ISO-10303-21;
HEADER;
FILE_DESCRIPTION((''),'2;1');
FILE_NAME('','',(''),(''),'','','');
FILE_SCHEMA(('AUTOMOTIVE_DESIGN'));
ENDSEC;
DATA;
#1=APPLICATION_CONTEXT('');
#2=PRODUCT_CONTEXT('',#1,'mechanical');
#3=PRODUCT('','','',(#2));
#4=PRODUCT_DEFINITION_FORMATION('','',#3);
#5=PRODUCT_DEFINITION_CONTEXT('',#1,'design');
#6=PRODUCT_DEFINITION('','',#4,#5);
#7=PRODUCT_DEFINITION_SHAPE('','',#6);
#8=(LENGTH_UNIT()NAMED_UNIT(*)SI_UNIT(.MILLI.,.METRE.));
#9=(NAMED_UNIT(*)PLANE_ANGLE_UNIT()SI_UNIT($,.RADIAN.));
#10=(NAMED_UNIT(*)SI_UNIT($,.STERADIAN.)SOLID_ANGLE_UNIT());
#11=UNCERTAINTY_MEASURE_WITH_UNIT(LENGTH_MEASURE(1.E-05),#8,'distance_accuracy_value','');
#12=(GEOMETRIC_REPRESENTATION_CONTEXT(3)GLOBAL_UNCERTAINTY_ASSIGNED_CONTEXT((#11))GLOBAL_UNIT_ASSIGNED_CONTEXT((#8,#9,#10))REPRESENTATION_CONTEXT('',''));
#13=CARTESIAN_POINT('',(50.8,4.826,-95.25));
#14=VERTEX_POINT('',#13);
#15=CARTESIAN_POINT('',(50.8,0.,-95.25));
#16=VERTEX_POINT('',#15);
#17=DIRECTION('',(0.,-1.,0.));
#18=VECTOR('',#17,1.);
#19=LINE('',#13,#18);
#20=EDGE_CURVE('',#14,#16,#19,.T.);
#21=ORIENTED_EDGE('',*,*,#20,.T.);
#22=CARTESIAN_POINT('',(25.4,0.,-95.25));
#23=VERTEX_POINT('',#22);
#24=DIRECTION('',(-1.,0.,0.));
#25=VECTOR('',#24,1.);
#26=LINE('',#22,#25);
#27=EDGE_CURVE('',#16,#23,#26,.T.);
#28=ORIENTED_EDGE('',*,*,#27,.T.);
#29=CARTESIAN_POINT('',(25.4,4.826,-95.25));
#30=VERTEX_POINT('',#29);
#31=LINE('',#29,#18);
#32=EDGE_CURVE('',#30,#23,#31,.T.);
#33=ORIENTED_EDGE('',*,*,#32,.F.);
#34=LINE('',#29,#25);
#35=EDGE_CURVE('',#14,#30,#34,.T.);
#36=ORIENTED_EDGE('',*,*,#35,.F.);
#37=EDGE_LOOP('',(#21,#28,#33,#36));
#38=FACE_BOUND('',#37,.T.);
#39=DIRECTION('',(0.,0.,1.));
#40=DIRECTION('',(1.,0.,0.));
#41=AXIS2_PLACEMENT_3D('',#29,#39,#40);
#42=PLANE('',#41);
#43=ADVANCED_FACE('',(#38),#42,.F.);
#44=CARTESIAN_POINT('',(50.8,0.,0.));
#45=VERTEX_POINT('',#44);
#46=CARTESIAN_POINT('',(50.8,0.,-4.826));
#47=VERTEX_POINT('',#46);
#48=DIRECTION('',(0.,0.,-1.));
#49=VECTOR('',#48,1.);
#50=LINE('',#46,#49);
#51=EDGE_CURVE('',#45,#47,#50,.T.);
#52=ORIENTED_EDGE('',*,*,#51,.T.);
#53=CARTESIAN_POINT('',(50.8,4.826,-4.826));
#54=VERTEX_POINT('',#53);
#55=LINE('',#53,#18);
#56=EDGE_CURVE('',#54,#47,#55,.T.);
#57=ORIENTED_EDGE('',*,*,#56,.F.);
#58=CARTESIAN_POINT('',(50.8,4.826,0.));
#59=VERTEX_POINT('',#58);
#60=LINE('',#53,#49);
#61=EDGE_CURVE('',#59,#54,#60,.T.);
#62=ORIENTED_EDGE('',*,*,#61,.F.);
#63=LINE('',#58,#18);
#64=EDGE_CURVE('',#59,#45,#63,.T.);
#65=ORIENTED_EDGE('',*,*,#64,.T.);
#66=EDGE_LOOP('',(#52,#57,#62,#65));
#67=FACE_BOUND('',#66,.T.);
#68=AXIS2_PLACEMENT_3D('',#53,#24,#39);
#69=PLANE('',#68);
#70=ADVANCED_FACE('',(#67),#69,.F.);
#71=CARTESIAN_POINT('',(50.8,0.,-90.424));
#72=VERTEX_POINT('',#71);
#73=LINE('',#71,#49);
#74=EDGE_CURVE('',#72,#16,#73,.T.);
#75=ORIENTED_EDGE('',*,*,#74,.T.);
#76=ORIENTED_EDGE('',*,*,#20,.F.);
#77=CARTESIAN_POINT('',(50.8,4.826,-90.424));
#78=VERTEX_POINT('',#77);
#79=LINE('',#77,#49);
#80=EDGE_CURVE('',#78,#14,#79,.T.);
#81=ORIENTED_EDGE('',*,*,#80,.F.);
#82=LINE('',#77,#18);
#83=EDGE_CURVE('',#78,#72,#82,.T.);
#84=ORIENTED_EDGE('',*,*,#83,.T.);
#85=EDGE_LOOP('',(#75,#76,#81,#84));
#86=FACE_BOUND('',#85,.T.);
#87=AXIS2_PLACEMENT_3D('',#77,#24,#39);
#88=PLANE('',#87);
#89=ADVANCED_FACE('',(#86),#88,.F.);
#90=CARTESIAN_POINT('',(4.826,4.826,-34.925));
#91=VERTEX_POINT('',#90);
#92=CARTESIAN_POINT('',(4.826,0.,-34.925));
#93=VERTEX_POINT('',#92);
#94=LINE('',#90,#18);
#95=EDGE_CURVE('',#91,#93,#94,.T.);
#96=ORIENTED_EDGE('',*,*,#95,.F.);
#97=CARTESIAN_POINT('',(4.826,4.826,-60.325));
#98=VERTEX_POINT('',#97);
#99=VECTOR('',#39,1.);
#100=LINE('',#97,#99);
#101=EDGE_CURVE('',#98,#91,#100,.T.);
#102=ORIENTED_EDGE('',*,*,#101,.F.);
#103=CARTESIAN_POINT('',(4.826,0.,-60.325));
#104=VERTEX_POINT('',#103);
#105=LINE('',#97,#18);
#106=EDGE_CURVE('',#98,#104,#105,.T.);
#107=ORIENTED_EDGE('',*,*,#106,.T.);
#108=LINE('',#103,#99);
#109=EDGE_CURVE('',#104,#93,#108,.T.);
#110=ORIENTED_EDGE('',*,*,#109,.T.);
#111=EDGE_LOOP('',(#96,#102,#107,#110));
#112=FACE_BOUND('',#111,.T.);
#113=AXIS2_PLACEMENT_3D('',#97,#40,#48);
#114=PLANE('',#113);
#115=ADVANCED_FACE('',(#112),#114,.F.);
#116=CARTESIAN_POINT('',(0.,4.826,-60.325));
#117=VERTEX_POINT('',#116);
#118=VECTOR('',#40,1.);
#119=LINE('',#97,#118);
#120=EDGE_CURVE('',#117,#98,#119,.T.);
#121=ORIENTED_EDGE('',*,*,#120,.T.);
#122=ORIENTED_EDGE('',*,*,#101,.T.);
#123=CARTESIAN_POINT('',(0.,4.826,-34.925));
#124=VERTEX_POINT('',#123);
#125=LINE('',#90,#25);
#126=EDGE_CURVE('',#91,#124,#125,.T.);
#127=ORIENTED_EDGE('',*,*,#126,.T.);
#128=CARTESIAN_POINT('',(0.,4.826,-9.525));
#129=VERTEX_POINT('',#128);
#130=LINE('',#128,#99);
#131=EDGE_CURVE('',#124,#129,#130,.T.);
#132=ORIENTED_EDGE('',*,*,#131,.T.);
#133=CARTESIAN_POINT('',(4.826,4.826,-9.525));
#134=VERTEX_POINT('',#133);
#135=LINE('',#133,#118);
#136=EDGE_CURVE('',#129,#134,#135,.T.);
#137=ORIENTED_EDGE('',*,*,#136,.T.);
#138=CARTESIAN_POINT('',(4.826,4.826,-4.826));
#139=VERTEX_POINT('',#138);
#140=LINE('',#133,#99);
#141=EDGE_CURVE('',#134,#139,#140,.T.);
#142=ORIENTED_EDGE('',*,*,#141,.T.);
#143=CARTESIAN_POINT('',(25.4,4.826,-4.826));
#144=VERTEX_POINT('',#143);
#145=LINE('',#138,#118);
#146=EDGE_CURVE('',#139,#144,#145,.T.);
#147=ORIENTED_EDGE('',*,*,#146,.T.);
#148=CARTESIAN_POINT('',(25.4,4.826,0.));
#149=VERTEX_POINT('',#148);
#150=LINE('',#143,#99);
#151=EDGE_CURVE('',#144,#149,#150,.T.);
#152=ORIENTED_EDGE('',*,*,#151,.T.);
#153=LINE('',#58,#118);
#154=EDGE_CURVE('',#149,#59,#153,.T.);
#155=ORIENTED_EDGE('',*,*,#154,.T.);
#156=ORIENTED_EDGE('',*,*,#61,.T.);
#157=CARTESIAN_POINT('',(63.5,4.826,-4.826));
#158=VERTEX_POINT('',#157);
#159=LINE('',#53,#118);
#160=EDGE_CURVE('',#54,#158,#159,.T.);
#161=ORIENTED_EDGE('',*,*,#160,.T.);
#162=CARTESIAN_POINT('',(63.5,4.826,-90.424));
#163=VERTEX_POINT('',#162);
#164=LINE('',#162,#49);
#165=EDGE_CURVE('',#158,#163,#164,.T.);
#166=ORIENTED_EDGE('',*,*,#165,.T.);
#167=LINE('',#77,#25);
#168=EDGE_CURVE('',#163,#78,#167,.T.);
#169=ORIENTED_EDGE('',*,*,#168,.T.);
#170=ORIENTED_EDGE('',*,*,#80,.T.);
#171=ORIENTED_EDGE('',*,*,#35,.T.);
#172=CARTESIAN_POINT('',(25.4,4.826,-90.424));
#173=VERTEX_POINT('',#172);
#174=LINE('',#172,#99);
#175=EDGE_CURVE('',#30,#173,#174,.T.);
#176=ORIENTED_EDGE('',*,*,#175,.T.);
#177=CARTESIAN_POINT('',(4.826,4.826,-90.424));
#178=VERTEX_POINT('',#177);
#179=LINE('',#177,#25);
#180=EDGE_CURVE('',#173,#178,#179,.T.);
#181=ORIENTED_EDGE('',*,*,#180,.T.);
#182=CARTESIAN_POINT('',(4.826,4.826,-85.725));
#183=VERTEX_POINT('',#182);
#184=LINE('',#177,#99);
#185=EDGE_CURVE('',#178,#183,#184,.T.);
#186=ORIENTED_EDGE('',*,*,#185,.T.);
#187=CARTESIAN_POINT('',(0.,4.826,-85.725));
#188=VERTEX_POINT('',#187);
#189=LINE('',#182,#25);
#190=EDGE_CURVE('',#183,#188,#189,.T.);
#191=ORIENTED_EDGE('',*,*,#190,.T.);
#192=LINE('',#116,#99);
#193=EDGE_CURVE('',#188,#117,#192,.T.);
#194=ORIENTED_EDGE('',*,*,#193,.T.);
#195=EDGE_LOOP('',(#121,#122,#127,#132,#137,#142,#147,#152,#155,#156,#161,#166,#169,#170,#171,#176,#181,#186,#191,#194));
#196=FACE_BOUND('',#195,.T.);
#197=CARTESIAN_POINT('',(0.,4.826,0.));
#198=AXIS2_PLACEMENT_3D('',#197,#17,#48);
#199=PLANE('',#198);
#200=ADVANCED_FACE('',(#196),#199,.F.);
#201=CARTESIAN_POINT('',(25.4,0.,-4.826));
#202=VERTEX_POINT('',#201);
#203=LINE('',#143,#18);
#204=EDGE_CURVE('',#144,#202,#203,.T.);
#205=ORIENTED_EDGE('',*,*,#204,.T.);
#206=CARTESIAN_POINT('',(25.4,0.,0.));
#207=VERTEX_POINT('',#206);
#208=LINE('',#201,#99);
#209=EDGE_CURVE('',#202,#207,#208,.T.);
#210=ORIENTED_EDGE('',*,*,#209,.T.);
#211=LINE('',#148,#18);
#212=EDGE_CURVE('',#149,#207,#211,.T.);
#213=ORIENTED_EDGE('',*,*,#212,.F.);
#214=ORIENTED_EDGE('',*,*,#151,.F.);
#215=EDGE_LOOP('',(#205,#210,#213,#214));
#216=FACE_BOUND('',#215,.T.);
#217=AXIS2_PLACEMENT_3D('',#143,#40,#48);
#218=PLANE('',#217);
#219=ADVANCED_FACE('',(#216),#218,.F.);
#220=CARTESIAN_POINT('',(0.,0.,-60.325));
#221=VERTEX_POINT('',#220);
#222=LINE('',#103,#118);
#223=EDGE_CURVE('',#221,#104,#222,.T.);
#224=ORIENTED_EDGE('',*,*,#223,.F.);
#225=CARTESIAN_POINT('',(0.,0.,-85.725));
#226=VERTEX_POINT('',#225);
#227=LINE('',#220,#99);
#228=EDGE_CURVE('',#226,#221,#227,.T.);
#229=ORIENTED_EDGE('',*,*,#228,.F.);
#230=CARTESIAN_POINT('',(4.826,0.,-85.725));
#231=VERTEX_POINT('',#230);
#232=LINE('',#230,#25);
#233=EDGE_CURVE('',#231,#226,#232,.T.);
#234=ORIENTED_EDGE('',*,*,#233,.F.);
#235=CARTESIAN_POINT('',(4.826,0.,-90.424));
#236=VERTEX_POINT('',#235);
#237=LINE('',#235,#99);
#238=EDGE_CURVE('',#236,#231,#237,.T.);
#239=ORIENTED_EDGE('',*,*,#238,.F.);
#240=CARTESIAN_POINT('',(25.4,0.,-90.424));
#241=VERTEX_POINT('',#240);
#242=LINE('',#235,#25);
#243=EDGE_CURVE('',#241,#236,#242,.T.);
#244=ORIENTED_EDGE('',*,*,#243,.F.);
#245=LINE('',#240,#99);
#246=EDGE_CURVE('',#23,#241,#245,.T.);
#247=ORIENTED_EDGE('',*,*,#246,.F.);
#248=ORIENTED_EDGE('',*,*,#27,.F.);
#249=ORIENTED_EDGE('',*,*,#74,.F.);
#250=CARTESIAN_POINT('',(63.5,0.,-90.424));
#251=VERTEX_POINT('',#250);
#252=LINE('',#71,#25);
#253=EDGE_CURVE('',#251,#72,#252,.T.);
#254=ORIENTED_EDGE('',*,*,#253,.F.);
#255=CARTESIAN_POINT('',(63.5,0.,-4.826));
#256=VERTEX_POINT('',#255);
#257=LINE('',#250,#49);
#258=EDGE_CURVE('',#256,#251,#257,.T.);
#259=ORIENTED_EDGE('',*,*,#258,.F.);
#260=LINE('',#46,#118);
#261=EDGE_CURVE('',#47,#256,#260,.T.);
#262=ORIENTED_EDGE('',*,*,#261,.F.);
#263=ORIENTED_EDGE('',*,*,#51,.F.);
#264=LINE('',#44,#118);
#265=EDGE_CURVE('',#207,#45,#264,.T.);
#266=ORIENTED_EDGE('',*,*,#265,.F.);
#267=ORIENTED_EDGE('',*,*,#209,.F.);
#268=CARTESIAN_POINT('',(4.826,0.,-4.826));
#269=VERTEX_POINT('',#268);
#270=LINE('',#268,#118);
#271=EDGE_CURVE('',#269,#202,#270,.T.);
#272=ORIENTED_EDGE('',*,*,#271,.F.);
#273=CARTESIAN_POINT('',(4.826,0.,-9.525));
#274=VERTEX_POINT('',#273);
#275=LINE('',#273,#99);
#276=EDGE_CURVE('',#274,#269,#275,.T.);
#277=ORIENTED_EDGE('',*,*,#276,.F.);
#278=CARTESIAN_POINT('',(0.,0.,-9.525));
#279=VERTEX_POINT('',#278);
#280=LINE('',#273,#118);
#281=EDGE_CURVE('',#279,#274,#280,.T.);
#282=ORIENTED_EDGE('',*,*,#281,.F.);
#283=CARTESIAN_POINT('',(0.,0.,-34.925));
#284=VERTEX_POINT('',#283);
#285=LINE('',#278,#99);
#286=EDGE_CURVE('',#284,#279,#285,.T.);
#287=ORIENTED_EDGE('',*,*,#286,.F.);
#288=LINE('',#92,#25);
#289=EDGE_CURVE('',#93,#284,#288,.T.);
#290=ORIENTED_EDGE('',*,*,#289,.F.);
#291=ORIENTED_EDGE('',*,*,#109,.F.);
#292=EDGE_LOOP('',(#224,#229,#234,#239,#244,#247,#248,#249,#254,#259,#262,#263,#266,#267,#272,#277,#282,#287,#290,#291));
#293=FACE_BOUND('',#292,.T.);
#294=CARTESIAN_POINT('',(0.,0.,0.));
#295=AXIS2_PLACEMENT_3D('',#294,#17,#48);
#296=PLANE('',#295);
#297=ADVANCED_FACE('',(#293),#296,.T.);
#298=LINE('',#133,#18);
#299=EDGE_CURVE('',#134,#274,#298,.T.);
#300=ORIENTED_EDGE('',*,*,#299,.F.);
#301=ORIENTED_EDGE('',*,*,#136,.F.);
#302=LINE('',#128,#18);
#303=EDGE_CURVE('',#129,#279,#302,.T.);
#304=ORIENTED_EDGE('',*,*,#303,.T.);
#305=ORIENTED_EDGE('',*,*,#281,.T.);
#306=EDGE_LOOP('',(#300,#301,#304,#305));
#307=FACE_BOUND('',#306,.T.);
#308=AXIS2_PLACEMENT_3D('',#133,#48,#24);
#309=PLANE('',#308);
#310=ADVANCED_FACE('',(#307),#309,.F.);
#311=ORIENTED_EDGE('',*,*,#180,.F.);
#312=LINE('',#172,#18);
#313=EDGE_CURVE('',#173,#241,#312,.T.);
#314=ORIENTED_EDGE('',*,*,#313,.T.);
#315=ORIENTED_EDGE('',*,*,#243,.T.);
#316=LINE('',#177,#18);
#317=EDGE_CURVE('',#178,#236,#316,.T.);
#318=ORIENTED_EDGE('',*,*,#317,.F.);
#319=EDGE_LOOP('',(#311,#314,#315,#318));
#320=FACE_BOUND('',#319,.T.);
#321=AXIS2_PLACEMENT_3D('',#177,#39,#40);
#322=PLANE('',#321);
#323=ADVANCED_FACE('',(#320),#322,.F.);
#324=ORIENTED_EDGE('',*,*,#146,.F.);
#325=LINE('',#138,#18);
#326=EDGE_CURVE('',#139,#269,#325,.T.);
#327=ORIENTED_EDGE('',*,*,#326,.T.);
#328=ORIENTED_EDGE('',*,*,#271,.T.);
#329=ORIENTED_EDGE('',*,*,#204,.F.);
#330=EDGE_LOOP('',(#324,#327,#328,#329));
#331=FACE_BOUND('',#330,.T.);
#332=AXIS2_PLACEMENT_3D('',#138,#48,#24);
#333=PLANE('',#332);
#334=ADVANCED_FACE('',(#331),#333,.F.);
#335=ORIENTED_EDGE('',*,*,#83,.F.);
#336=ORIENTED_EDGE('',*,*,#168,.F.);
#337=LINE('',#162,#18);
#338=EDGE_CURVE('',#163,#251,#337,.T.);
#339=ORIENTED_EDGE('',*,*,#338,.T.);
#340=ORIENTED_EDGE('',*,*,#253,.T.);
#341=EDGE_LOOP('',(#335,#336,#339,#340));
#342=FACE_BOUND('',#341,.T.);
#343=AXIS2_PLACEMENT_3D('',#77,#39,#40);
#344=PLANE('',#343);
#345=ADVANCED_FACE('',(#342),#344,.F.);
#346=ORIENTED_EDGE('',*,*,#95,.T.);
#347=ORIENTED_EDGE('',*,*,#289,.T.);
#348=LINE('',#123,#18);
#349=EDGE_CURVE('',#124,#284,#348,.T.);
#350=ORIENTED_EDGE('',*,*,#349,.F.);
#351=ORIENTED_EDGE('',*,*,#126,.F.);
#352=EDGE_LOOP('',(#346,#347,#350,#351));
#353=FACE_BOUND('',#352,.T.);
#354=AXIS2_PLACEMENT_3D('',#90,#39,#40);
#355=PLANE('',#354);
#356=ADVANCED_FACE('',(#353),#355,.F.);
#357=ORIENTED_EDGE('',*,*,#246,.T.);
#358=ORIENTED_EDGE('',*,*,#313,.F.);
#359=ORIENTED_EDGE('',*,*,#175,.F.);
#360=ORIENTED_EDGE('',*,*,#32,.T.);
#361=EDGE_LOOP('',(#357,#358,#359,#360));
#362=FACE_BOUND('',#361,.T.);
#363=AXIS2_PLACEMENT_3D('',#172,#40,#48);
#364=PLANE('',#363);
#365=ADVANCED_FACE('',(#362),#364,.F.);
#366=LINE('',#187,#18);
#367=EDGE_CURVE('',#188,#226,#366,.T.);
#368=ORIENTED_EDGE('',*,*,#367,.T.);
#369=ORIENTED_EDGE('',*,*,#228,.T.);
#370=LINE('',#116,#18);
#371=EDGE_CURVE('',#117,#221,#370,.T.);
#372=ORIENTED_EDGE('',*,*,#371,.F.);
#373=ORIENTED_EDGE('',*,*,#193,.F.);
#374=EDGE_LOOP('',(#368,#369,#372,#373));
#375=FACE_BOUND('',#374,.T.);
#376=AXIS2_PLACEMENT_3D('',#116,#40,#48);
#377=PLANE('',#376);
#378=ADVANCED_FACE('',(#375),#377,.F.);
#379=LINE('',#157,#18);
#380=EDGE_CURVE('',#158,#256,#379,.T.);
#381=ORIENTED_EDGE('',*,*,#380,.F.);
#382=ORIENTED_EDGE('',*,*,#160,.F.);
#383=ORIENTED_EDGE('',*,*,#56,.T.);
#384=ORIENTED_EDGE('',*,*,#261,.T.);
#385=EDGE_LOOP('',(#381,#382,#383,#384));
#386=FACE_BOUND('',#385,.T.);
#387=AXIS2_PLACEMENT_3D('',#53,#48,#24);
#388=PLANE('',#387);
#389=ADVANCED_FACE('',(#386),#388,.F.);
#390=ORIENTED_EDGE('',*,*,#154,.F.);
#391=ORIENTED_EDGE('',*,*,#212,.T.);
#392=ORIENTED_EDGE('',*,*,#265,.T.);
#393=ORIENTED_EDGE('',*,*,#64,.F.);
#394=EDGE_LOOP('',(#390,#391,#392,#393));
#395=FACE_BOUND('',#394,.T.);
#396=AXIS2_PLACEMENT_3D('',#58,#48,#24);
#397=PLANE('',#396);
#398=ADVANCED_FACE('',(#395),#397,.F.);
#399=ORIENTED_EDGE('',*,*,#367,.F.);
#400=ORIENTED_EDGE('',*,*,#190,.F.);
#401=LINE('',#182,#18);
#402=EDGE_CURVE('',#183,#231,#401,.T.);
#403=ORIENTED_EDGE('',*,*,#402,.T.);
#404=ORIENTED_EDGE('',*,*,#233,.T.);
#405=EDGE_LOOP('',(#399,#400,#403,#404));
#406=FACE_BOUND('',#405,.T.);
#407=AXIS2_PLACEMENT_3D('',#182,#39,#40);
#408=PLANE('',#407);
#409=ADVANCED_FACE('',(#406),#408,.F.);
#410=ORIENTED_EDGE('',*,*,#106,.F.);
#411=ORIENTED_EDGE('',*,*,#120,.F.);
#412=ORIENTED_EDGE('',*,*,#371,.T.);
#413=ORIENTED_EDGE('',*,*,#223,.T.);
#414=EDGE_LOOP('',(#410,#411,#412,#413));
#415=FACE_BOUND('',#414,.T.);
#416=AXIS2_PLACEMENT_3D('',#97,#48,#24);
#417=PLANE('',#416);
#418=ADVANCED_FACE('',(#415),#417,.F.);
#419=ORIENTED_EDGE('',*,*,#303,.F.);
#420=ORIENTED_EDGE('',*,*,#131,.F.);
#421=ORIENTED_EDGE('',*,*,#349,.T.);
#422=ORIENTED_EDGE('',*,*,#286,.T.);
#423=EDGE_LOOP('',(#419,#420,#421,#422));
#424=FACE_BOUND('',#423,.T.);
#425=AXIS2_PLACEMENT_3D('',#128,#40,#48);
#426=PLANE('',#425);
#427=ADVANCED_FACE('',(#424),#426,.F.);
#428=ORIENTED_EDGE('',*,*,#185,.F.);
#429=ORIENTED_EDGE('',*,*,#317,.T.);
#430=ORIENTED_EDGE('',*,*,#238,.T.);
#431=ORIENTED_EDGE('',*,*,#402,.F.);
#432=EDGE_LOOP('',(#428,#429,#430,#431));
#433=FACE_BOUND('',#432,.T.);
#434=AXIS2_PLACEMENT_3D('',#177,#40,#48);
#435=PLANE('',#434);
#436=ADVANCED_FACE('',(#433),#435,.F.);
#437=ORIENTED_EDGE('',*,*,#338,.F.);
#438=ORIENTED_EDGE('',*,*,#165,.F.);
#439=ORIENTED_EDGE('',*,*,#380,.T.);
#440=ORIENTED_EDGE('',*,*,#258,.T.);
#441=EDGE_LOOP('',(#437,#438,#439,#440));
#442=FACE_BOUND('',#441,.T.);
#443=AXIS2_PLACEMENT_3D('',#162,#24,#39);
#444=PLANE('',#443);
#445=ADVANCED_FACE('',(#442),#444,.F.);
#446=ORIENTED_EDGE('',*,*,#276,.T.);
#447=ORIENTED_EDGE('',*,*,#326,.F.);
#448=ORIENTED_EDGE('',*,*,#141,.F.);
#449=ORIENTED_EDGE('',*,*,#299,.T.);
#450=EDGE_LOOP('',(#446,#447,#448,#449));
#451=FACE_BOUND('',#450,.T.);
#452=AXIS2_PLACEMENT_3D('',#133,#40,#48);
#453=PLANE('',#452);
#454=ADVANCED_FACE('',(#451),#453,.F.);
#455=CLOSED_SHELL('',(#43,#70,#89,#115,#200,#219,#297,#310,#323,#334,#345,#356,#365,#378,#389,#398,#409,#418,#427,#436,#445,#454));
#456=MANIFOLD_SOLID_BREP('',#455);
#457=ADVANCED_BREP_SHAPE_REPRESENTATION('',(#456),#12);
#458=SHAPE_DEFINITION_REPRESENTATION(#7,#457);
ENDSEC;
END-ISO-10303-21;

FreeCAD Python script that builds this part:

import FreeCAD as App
import Part
import Sketcher

V = App.Vector
Q = App.Units.Quantity

doc = App.newDocument("Part")
params = doc.addObject("Spreadsheet::Sheet", "Params")
for row, (alias, value) in enumerate([
    ("sketch1_width", "1 in"),
    ("sketch1_width2", "0.5 in"),
    ("sketch1_width3", "0.19 in"),
    ("sketch1_height", "3.37 in"),
    ("pad1_length", "0.19 in"),
], start=1):
    params.set(f"A{row}", alias)
    params.set(f"B{row}", "=" + value)
    params.setAlias(f"B{row}", alias)

body = doc.addObject("PartDesign::Body", "Body")

# Sketch on XZ plane
sketch1 = body.newObject("Sketcher::SketchObject", "Sketch")
sketch1.AttachmentSupport = (doc.getObject("XZ_Plane"), [""])
sketch1.MapMode = "FlatFace"
sketch1.addGeometry([
    Part.LineSegment(V(4.8, -60.3, 0), V(4.8, -34.9, 0)),  # 0
    Part.LineSegment(V(4.8, -34.9, 0), V(0, -34.9, 0)),  # 1
    Part.LineSegment(V(0, -34.9, 0), V(0, -9.5, 0)),  # 2
    Part.LineSegment(V(0, -9.5, 0), V(4.8, -9.5, 0)),  # 3
    Part.LineSegment(V(4.8, -9.5, 0), V(4.8, -4.8, 0)),  # 4
    Part.LineSegment(V(4.8, -4.8, 0), V(25.4, -4.8, 0)),  # 5
    Part.LineSegment(V(25.4, -4.8, 0), V(25.4, 0, 0)),  # 6
    Part.LineSegment(V(25.4, 0, 0), V(50.8, 0, 0)),  # 7
    Part.LineSegment(V(50.8, 0, 0), V(50.8, -4.8, 0)),  # 8
    Part.LineSegment(V(50.8, -4.8, 0), V(63.5, -4.8, 0)),  # 9
    Part.LineSegment(V(63.5, -4.8, 0), V(63.5, -90.4, 0)),  # 10
    Part.LineSegment(V(63.5, -90.4, 0), V(50.8, -90.4, 0)),  # 11
    Part.LineSegment(V(50.8, -90.4, 0), V(50.8, -95.2, 0)),  # 12
    Part.LineSegment(V(50.8, -95.2, 0), V(25.4, -95.2, 0)),  # 13
    Part.LineSegment(V(25.4, -95.2, 0), V(25.4, -90.4, 0)),  # 14
    Part.LineSegment(V(25.4, -90.4, 0), V(4.8, -90.4, 0)),  # 15
    Part.LineSegment(V(4.8, -90.4, 0), V(4.8, -85.7, 0)),  # 16
    Part.LineSegment(V(4.8, -85.7, 0), V(0, -85.7, 0)),  # 17
    Part.LineSegment(V(0, -85.7, 0), V(0, -60.3, 0)),  # 18
    Part.LineSegment(V(0, -60.3, 0), V(4.8, -60.3, 0)),  # 19
], False)
sketch1.addConstraint([
    Sketcher.Constraint("Coincident", 0, 2, 1, 1),
    Sketcher.Constraint("Coincident", 1, 2, 2, 1),
    Sketcher.Constraint("Coincident", 2, 2, 3, 1),
    Sketcher.Constraint("Coincident", 3, 2, 4, 1),
    Sketcher.Constraint("Coincident", 4, 2, 5, 1),
    Sketcher.Constraint("Coincident", 5, 2, 6, 1),
    Sketcher.Constraint("Coincident", 6, 2, 7, 1),
    Sketcher.Constraint("Coincident", 7, 2, 8, 1),
    Sketcher.Constraint("Coincident", 8, 2, 9, 1),
    Sketcher.Constraint("Coincident", 9, 2, 10, 1),
    Sketcher.Constraint("Coincident", 10, 2, 11, 1),
    Sketcher.Constraint("Coincident", 11, 2, 12, 1),
    Sketcher.Constraint("Coincident", 12, 2, 13, 1),
    Sketcher.Constraint("Coincident", 13, 2, 14, 1),
    Sketcher.Constraint("Coincident", 14, 2, 15, 1),
    Sketcher.Constraint("Coincident", 15, 2, 16, 1),
    Sketcher.Constraint("Coincident", 16, 2, 17, 1),
    Sketcher.Constraint("Coincident", 17, 2, 18, 1),
    Sketcher.Constraint("Coincident", 18, 2, 19, 1),
    Sketcher.Constraint("Coincident", 19, 2, 0, 1),
    Sketcher.Constraint("Vertical", 0),
    Sketcher.Constraint("Horizontal", 1),
    Sketcher.Constraint("Vertical", 2),
    Sketcher.Constraint("Horizontal", 3),
    Sketcher.Constraint("Vertical", 4),
    Sketcher.Constraint("Horizontal", 5),
    Sketcher.Constraint("Vertical", 6),
    Sketcher.Constraint("Horizontal", 7),
    Sketcher.Constraint("Vertical", 8),
    Sketcher.Constraint("Horizontal", 9),
    Sketcher.Constraint("Vertical", 10),
    Sketcher.Constraint("Horizontal", 11),
    Sketcher.Constraint("Vertical", 12),
    Sketcher.Constraint("Horizontal", 13),
    Sketcher.Constraint("Vertical", 14),
    Sketcher.Constraint("Horizontal", 15),
    Sketcher.Constraint("Vertical", 16),
    Sketcher.Constraint("Horizontal", 17),
    Sketcher.Constraint("Vertical", 18),
    Sketcher.Constraint("Horizontal", 19),
    Sketcher.Constraint("PointOnObject", 1, 2, -2),
    Sketcher.Constraint("PointOnObject", 6, 2, -1),
    Sketcher.Constraint("PointOnObject", 17, 2, -2),
    Sketcher.Constraint("Horizontal", 5, 2, 8, 2),
    Sketcher.Constraint("Horizontal", 11, 2, 14, 2),
    Sketcher.Constraint("Vertical", 0, 2, 3, 2),
    Sketcher.Constraint("Vertical", 8, 2, 11, 2),
    Sketcher.Constraint("Vertical", 6, 2, 13, 2),
    Sketcher.Constraint("Vertical", 4, 2, 15, 2),
    Sketcher.Constraint("Equal", 13, 0),
    Sketcher.Constraint("Equal", 0, 2),
    Sketcher.Constraint("Equal", 19, 6),
    Sketcher.Constraint("Equal", 8, 12),
    Sketcher.Constraint("Equal", 4, 16),
    Sketcher.Constraint("Equal", 2, 18),
    Sketcher.Constraint("DistanceX", 7, 1, 7, 2, Q("1 in")),
    Sketcher.Constraint("DistanceX", 9, 1, 9, 2, Q("0.5 in")),
    Sketcher.Constraint("DistanceX", -1, 1, 5, 2, Q("1 in")),
    Sketcher.Constraint("DistanceX", 1, 2, 1, 1, Q("0.19 in")),
    Sketcher.Constraint("DistanceY", 10, 2, 10, 1, Q("3.37 in")),
])
sketch1.setExpression("Constraints[55]", "Params.sketch1_width")
sketch1.setExpression("Constraints[56]", "Params.sketch1_width2")
sketch1.setExpression("Constraints[58]", "Params.sketch1_width3")
sketch1.setExpression("Constraints[59]", "Params.sketch1_height")
pad1 = body.newObject("PartDesign::Pad", "Pad")
pad1.Profile = sketch1
pad1.setExpression("Length", "Params.pad1_length")
pad1.Reversed = True

doc.recompute()
